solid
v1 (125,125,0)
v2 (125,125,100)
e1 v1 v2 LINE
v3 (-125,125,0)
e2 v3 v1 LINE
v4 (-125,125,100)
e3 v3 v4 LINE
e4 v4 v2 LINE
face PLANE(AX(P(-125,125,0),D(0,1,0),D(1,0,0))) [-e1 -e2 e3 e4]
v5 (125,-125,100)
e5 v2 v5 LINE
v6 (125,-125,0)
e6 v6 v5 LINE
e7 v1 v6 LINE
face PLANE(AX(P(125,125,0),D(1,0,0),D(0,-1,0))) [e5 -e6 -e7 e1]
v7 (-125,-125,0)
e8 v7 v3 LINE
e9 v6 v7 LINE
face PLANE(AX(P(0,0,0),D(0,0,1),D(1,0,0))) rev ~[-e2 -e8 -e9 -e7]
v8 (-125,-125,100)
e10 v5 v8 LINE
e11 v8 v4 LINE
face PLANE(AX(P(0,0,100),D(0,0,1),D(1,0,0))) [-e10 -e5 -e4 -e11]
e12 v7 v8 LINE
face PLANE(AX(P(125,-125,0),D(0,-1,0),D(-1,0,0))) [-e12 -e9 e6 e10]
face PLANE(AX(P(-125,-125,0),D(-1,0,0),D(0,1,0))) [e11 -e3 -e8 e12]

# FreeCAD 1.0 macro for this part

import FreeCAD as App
import Part
import Sketcher
from FreeCAD import Vector
Q = App.Units.Quantity

doc = App.newDocument("Part")
body = doc.addObject("PartDesign::Body", "Body")

# Sketch on XY plane
sketch1 = body.newObject("Sketcher::SketchObject", "Sketch")
sketch1.AttachmentSupport = (doc.getObject("XY_Plane"), [""])
sketch1.MapMode = "FlatFace"
sketch1.addGeometry(Part.LineSegment(Vector(-125, -125, 0), Vector(125, -125, 0)), False)
sketch1.addGeometry(Part.LineSegment(Vector(125, -125, 0), Vector(125, 125, 0)), False)
sketch1.addGeometry(Part.LineSegment(Vector(125, 125, 0), Vector(-125, 125, 0)), False)
sketch1.addGeometry(Part.LineSegment(Vector(-125, 125, 0), Vector(-125, -125, 0)), False)
sketch1.addConstraint(Sketcher.Constraint("Coincident", 0, 2, 1, 1))
sketch1.addConstraint(Sketcher.Constraint("Coincident", 1, 2, 2, 1))
sketch1.addConstraint(Sketcher.Constraint("Coincident", 2, 2, 3, 1))
sketch1.addConstraint(Sketcher.Constraint("Coincident", 3, 2, 0, 1))
sketch1.addConstraint(Sketcher.Constraint("Horizontal", 0))
sketch1.addConstraint(Sketcher.Constraint("Vertical", 1))
sketch1.addConstraint(Sketcher.Constraint("Horizontal", 2))
sketch1.addConstraint(Sketcher.Constraint("Vertical", 3))
sketch1.addConstraint(Sketcher.Constraint("Symmetric", 0, 2, 2, 2, -1, 1))
sketch1.addConstraint(Sketcher.Constraint("Equal", 2, 1))
sketch1.addConstraint(Sketcher.Constraint("DistanceX", 0, 1, 0, 2, Q("250 mm")))
pad1 = body.newObject("PartDesign::Pad", "Pad")
pad1.Profile = sketch1
pad1.Length = 100

doc.recompute()
